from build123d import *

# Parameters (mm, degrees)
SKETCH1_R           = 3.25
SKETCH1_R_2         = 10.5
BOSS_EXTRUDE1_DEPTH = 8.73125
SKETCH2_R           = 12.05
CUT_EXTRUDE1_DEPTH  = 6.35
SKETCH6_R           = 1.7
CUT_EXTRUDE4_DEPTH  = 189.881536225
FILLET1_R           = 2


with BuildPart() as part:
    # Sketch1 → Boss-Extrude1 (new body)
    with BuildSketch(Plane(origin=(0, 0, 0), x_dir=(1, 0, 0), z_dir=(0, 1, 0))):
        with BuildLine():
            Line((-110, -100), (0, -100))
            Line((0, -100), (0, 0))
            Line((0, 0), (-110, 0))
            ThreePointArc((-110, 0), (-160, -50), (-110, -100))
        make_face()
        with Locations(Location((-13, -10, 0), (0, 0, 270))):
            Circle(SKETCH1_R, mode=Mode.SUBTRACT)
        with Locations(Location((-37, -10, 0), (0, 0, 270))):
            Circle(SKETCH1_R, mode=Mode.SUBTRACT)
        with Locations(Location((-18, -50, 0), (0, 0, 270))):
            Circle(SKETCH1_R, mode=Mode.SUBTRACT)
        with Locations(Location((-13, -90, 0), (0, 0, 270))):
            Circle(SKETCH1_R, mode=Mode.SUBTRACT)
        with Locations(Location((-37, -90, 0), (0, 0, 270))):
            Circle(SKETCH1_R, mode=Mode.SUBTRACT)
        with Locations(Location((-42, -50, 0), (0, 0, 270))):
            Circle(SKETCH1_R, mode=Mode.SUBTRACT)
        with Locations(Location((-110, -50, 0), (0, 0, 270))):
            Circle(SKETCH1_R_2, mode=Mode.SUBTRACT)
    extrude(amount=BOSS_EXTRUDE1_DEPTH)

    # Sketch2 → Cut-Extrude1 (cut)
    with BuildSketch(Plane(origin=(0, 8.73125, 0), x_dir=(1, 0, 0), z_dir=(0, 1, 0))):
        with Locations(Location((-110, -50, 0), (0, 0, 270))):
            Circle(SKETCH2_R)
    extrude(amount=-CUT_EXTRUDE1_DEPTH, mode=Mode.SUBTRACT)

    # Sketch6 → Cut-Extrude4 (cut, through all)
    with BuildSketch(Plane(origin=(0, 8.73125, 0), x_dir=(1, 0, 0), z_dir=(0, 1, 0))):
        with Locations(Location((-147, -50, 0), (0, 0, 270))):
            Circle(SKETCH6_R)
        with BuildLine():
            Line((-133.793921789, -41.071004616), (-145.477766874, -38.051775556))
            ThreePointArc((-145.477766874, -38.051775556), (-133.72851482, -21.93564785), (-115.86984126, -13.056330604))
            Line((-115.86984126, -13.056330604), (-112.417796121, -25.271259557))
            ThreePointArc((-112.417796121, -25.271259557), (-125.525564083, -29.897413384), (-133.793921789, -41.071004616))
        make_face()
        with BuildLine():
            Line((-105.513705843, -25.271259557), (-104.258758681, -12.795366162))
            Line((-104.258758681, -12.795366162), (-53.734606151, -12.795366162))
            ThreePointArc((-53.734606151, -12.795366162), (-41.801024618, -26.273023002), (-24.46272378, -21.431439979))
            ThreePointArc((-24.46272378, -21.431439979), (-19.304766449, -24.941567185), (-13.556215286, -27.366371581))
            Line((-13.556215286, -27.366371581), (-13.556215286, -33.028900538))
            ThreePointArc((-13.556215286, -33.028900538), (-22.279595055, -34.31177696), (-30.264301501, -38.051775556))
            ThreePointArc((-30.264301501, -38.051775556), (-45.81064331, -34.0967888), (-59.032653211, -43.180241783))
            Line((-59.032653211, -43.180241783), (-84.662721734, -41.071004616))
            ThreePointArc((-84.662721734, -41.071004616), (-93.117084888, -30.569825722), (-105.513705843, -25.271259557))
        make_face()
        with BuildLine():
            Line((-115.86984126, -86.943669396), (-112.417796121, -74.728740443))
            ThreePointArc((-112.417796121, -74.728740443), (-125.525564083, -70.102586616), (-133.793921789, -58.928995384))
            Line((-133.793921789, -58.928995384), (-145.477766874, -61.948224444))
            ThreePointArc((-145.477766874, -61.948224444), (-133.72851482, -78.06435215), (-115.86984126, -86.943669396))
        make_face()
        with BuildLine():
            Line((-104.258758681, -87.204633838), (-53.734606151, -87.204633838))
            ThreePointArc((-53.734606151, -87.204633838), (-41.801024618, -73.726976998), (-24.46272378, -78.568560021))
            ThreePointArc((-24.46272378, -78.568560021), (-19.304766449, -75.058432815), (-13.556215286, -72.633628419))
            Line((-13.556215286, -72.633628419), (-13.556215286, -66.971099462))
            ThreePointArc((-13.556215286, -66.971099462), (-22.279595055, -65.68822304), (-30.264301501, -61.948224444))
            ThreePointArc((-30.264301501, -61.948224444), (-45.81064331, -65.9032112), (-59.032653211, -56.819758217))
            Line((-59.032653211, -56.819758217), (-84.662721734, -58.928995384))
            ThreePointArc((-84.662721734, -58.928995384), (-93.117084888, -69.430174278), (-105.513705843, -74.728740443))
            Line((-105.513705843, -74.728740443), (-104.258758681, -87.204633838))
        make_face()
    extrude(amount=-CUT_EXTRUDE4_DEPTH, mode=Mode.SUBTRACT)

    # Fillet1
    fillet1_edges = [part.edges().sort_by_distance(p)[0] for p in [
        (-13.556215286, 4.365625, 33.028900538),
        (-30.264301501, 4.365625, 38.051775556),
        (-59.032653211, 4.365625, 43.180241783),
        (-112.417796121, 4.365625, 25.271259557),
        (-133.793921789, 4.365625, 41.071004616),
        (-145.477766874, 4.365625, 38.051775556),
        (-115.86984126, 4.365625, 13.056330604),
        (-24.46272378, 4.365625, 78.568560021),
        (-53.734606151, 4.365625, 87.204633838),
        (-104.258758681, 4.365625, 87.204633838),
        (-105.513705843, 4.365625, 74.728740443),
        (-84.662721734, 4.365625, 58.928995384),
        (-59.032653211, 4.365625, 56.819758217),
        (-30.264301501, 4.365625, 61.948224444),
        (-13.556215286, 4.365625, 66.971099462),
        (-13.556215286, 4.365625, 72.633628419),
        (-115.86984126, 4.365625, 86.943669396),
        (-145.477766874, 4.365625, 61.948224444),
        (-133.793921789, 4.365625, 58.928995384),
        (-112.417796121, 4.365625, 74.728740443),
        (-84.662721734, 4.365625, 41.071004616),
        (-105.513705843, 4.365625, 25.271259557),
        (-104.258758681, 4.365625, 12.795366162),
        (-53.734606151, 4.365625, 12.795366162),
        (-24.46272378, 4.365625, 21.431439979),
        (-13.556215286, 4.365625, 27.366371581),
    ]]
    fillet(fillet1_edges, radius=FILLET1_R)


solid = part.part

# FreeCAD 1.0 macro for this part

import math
import FreeCAD as App
import Part
import Sketcher

V = App.Vector


def edges_at(feature, points):
    """Names of the edges that pass closest to the given points."""
    edges = feature.Shape.Edges
    near = lambda p: min(range(len(edges)), key=lambda i: edges[i].distToShape(Part.Vertex(*p))[0])
    return sorted({f"Edge{near(p) + 1}" for p in points})

doc = App.newDocument("Part")
body = doc.addObject("PartDesign::Body", "Body")

# Sketch on XZ plane
sketch1 = body.newObject("Sketcher::SketchObject", "Sketch")
sketch1.AttachmentSupport = (doc.getObject("XZ_Plane"), [""])
sketch1.MapMode = "FlatFace"
sketch1.addGeometry([
    Part.LineSegment(V(-110, 100, 0), V(0, 100, 0)),  # 0
    Part.LineSegment(V(0, 100, 0), V(0, 0, 0)),  # 1
    Part.LineSegment(V(0, 0, 0), V(-110, 0, 0)),  # 2
    Part.ArcOfCircle(Part.Circle(V(-110, 50, 0), V(0, 0, 1), 50), math.radians(90), math.radians(270)),  # 3
    Part.Circle(V(-37, 90, 0), V(0, 0, 1), 3.2),  # 4
    Part.Circle(V(-13, 90, 0), V(0, 0, 1), 3.2),  # 5
    Part.Circle(V(-110, 50, 0), V(0, 0, 1), 10.5),  # 6
    Part.Circle(V(-42, 50, 0), V(0, 0, 1), 3.2),  # 7
    Part.Circle(V(-18, 50, 0), V(0, 0, 1), 3.2),  # 8
    Part.Circle(V(-37, 10, 0), V(0, 0, 1), 3.2),  # 9
    Part.Circle(V(-13, 10, 0), V(0, 0, 1), 3.2),  # 10
], False)
sketch1.addConstraint([
    Sketcher.Constraint("Coincident", 0, 2, 1, 1),
    Sketcher.Constraint("Coincident", 1, 2, 2, 1),
    Sketcher.Constraint("Tangent", 2, 2, 3, 2),
    Sketcher.Constraint("Tangent", 3, 1, 0, 1),
    Sketcher.Constraint("Horizontal", 0),
    Sketcher.Constraint("Vertical", 1),
    Sketcher.Constraint("Horizontal", 2),
    Sketcher.Constraint("Coincident", 1, 2, -1, 1),
    Sketcher.Constraint("Coincident", 6, 3, 3, 3),
    Sketcher.Constraint("Equal", 4, 5),
    Sketcher.Constraint("Equal", 5, 7),
    Sketcher.Constraint("Equal", 7, 8),
    Sketcher.Constraint("Equal", 8, 9),
    Sketcher.Constraint("Equal", 9, 10),
    Sketcher.Constraint("Horizontal", 4, 3, 5, 3),
    Sketcher.Constraint("Horizontal", 6, 3, 7, 3),
    Sketcher.Constraint("Horizontal", 7, 3, 8, 3),
    Sketcher.Constraint("Horizontal", 9, 3, 10, 3),
    Sketcher.Constraint("Vertical", 4, 3, 9, 3),
    Sketcher.Constraint("Vertical", 5, 3, 10, 3),
    Sketcher.Constraint("Diameter", 6, 21.0),
    Sketcher.Constraint("Radius", 3, 50.0),
    Sketcher.Constraint("Diameter", 4, 6.5),
    Sketcher.Constraint("DistanceX", 0, 1, 0, 2, 110.0),
    Sketcher.Constraint("DistanceX", 4, 3, -1, 1, 37.0),
    Sketcher.Constraint("DistanceY", -1, 1, 4, 3, 90.0),
    Sketcher.Constraint("DistanceX", 5, 3, -1, 1, 13.0),
    Sketcher.Constraint("DistanceX", 7, 3, -1, 1, 42.0),
    Sketcher.Constraint("DistanceX", 8, 3, -1, 1, 18.0),
    Sketcher.Constraint("DistanceY", -1, 1, 9, 3, 10.0),
])
pad1 = body.newObject("PartDesign::Pad", "Pad")
pad1.Profile = sketch1
pad1.Length = 8.73125
pad1.Reversed = True

# Sketch on XZ plane
sketch2 = body.newObject("Sketcher::SketchObject", "Sketch001")
sketch2.AttachmentSupport = (doc.getObject("XZ_Plane"), [""])
sketch2.MapMode = "FlatFace"
sketch2.AttachmentOffset = App.Placement(V(0, 0, -8.73125), App.Rotation())
sketch2.addGeometry(Part.Circle(V(-110, 50, 0), V(0, 0, 1), 12), False)
sketch2.addConstraint([
    Sketcher.Constraint("Diameter", 0, 24.1),
    Sketcher.Constraint("DistanceX", 0, 3, -1, 1, 110.0),
    Sketcher.Constraint("DistanceY", -1, 1, 0, 3, 50.0),
])
pocket1 = body.newObject("PartDesign::Pocket", "Pocket")
pocket1.Profile = sketch2
pocket1.Length = 6.35
pocket1.Reversed = True

# Sketch on XZ plane
sketch3 = body.newObject("Sketcher::SketchObject", "Sketch002")
sketch3.AttachmentSupport = (doc.getObject("XZ_Plane"), [""])
sketch3.MapMode = "FlatFace"
sketch3.AttachmentOffset = App.Placement(V(0, 0, -8.73125), App.Rotation())
sketch3.addGeometry([
    Part.Circle(V(-147, 50, 0), V(0, 0, 1), 1.7),  # 0
    Part.LineSegment(V(-145.5, 38.1, 0), V(-133.8, 41.1, 0)),  # 1
    Part.ArcOfCircle(Part.Circle(V(-111.4, 49, 0), V(0, 0, 1), 23.7), math.radians(-161), math.radians(-92)),  # 2
    Part.LineSegment(V(-112.4, 25.3, 0), V(-115.9, 13.1, 0)),  # 3
    Part.ArcOfCircle(Part.Circle(V(-106.6, 54, 0), V(0, 0, 1), 42), math.radians(-158), math.radians(-103)),  # 4
    Part.LineSegment(V(-104.3, 12.8, 0), V(-105.5, 25.3, 0)),  # 5
    Part.ArcOfCircle(Part.Circle(V(-109.9, 52.8, 0), V(0, 0, 1), 27.8), math.radians(-81), math.radians(-25)),  # 6
    Part.LineSegment(V(-84.7, 41.1, 0), V(-59, 43.2, 0)),  # 7
    Part.ArcOfCircle(Part.Circle(V(-42.4, 53.2, 0), V(0, 0, 1), 19.4), math.radians(-149), math.radians(-51)),  # 8
    Part.ArcOfCircle(Part.Circle(V(-13.6, 63.3, 0), V(0, 0, 1), 30.3), math.radians(-123), math.radians(-90)),  # 9
    Part.LineSegment(V(-13.6, 33, 0), V(-13.6, 27.4, 0)),  # 10
    Part.ArcOfCircle(Part.Circle(V(-4.2, -2.7, 0), V(0, 0, 1), 31.5), math.radians(107), math.radians(130)),  # 11
    Part.ArcOfCircle(Part.Circle(V(-37, 10, 0), V(0, 0, 1), 17), math.radians(42), math.radians(171)),  # 12
    Part.LineSegment(V(-53.7, 12.8, 0), V(-104.3, 12.8, 0)),  # 13
    Part.LineSegment(V(-115.9, 86.9, 0), V(-112.4, 74.7, 0)),  # 14
    Part.ArcOfCircle(Part.Circle(V(-111.4, 51, 0), V(0, 0, 1), 23.7), math.radians(92), math.radians(161)),  # 15
    Part.LineSegment(V(-133.8, 58.9, 0), V(-145.5, 61.9, 0)),  # 16
    Part.ArcOfCircle(Part.Circle(V(-106.6, 46, 0), V(0, 0, 1), 42), math.radians(103), math.radians(158)),  # 17
    Part.LineSegment(V(-104.3, 87.2, 0), V(-53.7, 87.2, 0)),  # 18
    Part.ArcOfCircle(Part.Circle(V(-37, 90, 0), V(0, 0, 1), 17), math.radians(-171), math.radians(-42)),  # 19
    Part.ArcOfCircle(Part.Circle(V(-4.2, 102.7, 0), V(0, 0, 1), 31.5), math.radians(-130), math.radians(-107)),  # 20
    Part.LineSegment(V(-13.6, 72.6, 0), V(-13.6, 67, 0)),  # 21
    Part.ArcOfCircle(Part.Circle(V(-13.6, 36.7, 0), V(0, 0, 1), 30.3), math.radians(90), math.radians(123)),  # 22
    Part.ArcOfCircle(Part.Circle(V(-42.4, 46.8, 0), V(0, 0, 1), 19.4), math.radians(51), math.radians(149)),  # 23
    Part.LineSegment(V(-59, 56.8, 0), V(-84.7, 58.9, 0)),  # 24
    Part.ArcOfCircle(Part.Circle(V(-109.9, 47.2, 0), V(0, 0, 1), 27.8), math.radians(25), math.radians(81)),  # 25
    Part.LineSegment(V(-105.5, 74.7, 0), V(-104.3, 87.2, 0)),  # 26
], False)
sketch3.addConstraint([
    Sketcher.Constraint("Coincident", 1, 2, 2, 1),
    Sketcher.Constraint("Coincident", 2, 2, 3, 1),
    Sketcher.Constraint("Coincident", 3, 2, 4, 2),
    Sketcher.Constraint("Coincident", 4, 1, 1, 1),
    Sketcher.Constraint("Coincident", 5, 2, 6, 1),
    Sketcher.Constraint("Coincident", 6, 2, 7, 1),
    Sketcher.Constraint("Coincident", 7, 2, 8, 1),
    Sketcher.Constraint("Coincident", 8, 2, 9, 1),
    Sketcher.Constraint("Coincident", 9, 2, 10, 1),
    Sketcher.Constraint("Coincident", 10, 2, 11, 1),
    Sketcher.Constraint("Coincident", 11, 2, 12, 1),
    Sketcher.Constraint("Coincident", 12, 2, 13, 1),
    Sketcher.Constraint("Coincident", 13, 2, 5, 1),
    Sketcher.Constraint("Coincident", 14, 2, 15, 1),
    Sketcher.Constraint("Coincident", 15, 2, 16, 1),
    Sketcher.Constraint("Coincident", 16, 2, 17, 2),
    Sketcher.Constraint("Coincident", 17, 1, 14, 1),
    Sketcher.Constraint("Coincident", 18, 2, 19, 1),
    Sketcher.Constraint("Coincident", 19, 2, 20, 1),
    Sketcher.Constraint("Coincident", 20, 2, 21, 1),
    Sketcher.Constraint("Coincident", 21, 2, 22, 1),
    Sketcher.Constraint("Coincident", 22, 2, 23, 1),
    Sketcher.Constraint("Coincident", 23, 2, 24, 1),
    Sketcher.Constraint("Coincident", 24, 2, 25, 1),
    Sketcher.Constraint("Coincident", 25, 2, 26, 1),
    Sketcher.Constraint("Coincident", 26, 2, 18, 1),
    Sketcher.Constraint("Vertical", 10),
    Sketcher.Constraint("Horizontal", 13),
    Sketcher.Constraint("Horizontal", 18),
    Sketcher.Constraint("Vertical", 21),
    Sketcher.Constraint("Equal", 2, 15),
    Sketcher.Constraint("Equal", 4, 17),
    Sketcher.Constraint("Equal", 12, 19),
    Sketcher.Constraint("Equal", 11, 20),
    Sketcher.Constraint("Equal", 9, 22),
    Sketcher.Constraint("Equal", 8, 23),
    Sketcher.Constraint("Equal", 6, 25),
    Sketcher.Constraint("Horizontal", 2, 2, 5, 2),
    Sketcher.Constraint("Horizontal", 1, 2, 6, 2),
    Sketcher.Constraint("Horizontal", 4, 1, 8, 2),
    Sketcher.Constraint("Horizontal", 16, 2, 22, 2),
    Sketcher.Constraint("Horizontal", 15, 2, 24, 2),
    Sketcher.Constraint("Horizontal", 14, 2, 25, 2),
    Sketcher.Constraint("Vertical", 2, 3, 15, 3),
    Sketcher.Constraint("Vertical", 4, 3, 17, 3),
    Sketcher.Constraint("Vertical", 12, 3, 19, 3),
    Sketcher.Constraint("Vertical", 11, 3, 20, 3),
    Sketcher.Constraint("Vertical", 9, 3, 22, 3),
    Sketcher.Constraint("Vertical", 8, 3, 23, 3),
    Sketcher.Constraint("Vertical", 6, 3, 25, 3),
    Sketcher.Constraint("Vertical", 22, 3, 9, 2),
    Sketcher.Constraint("Vertical", 2, 2, 14, 2),
    Sketcher.Constraint("Vertical", 1, 2, 15, 2),
    Sketcher.Constraint("Vertical", 4, 1, 16, 2),
    Sketcher.Constraint("Vertical", 3, 2, 17, 1),
    Sketcher.Constraint("Vertical", 12, 2, 18, 2),
    Sketcher.Constraint("Vertical", 11, 2, 19, 2),
    Sketcher.Constraint("Vertical", 10, 2, 20, 2),
    Sketcher.Constraint("Vertical", 8, 2, 22, 2),
    Sketcher.Constraint("Vertical", 7, 2, 23, 2),
    Sketcher.Constraint("Vertical", 6, 2, 24, 2),
    Sketcher.Constraint("Vertical", 13, 2, 26, 2),
    Sketcher.Constraint("Equal", 10, 21),
    Sketcher.Constraint("Equal", 3, 14),
    Sketcher.Constraint("Radius", 4, 42.0),
    Sketcher.Constraint("Diameter", 0, 3.4),
    Sketcher.Constraint("DistanceX", 0, 3, -1, 1, 147.0),
    Sketcher.Constraint("DistanceY", -1, 1, 0, 3, 50.0),
    Sketcher.Constraint("DistanceX", 12, 3, -1, 1, 37.0),
    Sketcher.Constraint("DistanceY", -1, 1, 12, 3, 10.0),
    Sketcher.Constraint("DistanceY", -1, 1, 19, 3, 90.0),
    Sketcher.Constraint("Radius", 2, 23.731238),
    Sketcher.Constraint("Radius", 6, 27.843789),
    Sketcher.Constraint("Radius", 12, 16.96647),
    Sketcher.Constraint("Radius", 8, 19.429987),
    Sketcher.Constraint("Radius", 9, 30.300318),
    Sketcher.Constraint("Radius", 11, 31.503133),
    Sketcher.Constraint("DistanceY", 10, 2, 10, 1, 5.662529),
    Sketcher.Constraint("DistanceX", 8, 2, -1, 1, 30.264302),
    Sketcher.Constraint("DistanceY", -1, 1, 9, 2, 33.028901),
    Sketcher.Constraint("DistanceY", 2, 3, 8, 3, 4.243699),
    Sketcher.Constraint("DistanceY", 11, 3, 2, 3, 51.711399),
    Sketcher.Constraint("DistanceY", 2, 2, 17, 3, 20.700201),
    Sketcher.Constraint("Distance", 1, 12.067642),
    Sketcher.Constraint("Distance", 3, 12.693349),
    Sketcher.Constraint("Distance", 5, 12.538852),
    Sketcher.Constraint("DistanceX", 13, 2, 13, 1, 50.524153),
    Sketcher.Constraint("DistanceX", 2, 3, -1, 1, 111.419928),
    Sketcher.Constraint("DistanceY", -1, 1, 2, 3, 48.981509),
    Sketcher.Constraint("DistanceY", -1, 1, 4, 3, 54.028539),
    Sketcher.Constraint("DistanceX", 6, 3, -1, 1, 109.933168),
    Sketcher.Constraint("DistanceX", 11, 3, -1, 1, 4.24695),
    Sketcher.Constraint("DistanceX", 1, 2, -1, 1, 133.793922),
    Sketcher.Constraint("DistanceX", 6, 2, -1, 1, 84.662722),
    Sketcher.Constraint("DistanceY", -1, 1, 7, 2, 43.180242),
])
pocket2 = body.newObject("PartDesign::Pocket", "Pocket001")
pocket2.Profile = sketch3
pocket2.Type = "ThroughAll"
pocket2.Reversed = True
doc.recompute()

fillet = body.newObject("PartDesign::Fillet", "Fillet")
fillet.Base = (pocket2, edges_at(pocket2, [
    (-13.556, 4.366, 33.029),
    (-30.264, 4.366, 38.052),
    (-59.033, 4.366, 43.18),
    (-112.418, 4.366, 25.271),
    (-133.794, 4.366, 41.071),
    (-145.478, 4.366, 38.052),
    (-115.87, 4.366, 13.056),
    (-24.463, 4.366, 78.569),
    (-53.735, 4.366, 87.205),
    (-104.259, 4.366, 87.205),
    (-105.514, 4.366, 74.729),
    (-84.663, 4.366, 58.929),
    (-59.033, 4.366, 56.82),
    (-30.264, 4.366, 61.948),
    (-13.556, 4.366, 66.971),
    (-13.556, 4.366, 72.634),
    (-115.87, 4.366, 86.944),
    (-145.478, 4.366, 61.948),
    (-133.794, 4.366, 58.929),
    (-112.418, 4.366, 74.729),
    (-84.663, 4.366, 41.071),
    (-105.514, 4.366, 25.271),
    (-104.259, 4.366, 12.795),
    (-53.735, 4.366, 12.795),
    (-24.463, 4.366, 21.431),
    (-13.556, 4.366, 27.366),
]))
fillet.Radius = 2

doc.recompute()
